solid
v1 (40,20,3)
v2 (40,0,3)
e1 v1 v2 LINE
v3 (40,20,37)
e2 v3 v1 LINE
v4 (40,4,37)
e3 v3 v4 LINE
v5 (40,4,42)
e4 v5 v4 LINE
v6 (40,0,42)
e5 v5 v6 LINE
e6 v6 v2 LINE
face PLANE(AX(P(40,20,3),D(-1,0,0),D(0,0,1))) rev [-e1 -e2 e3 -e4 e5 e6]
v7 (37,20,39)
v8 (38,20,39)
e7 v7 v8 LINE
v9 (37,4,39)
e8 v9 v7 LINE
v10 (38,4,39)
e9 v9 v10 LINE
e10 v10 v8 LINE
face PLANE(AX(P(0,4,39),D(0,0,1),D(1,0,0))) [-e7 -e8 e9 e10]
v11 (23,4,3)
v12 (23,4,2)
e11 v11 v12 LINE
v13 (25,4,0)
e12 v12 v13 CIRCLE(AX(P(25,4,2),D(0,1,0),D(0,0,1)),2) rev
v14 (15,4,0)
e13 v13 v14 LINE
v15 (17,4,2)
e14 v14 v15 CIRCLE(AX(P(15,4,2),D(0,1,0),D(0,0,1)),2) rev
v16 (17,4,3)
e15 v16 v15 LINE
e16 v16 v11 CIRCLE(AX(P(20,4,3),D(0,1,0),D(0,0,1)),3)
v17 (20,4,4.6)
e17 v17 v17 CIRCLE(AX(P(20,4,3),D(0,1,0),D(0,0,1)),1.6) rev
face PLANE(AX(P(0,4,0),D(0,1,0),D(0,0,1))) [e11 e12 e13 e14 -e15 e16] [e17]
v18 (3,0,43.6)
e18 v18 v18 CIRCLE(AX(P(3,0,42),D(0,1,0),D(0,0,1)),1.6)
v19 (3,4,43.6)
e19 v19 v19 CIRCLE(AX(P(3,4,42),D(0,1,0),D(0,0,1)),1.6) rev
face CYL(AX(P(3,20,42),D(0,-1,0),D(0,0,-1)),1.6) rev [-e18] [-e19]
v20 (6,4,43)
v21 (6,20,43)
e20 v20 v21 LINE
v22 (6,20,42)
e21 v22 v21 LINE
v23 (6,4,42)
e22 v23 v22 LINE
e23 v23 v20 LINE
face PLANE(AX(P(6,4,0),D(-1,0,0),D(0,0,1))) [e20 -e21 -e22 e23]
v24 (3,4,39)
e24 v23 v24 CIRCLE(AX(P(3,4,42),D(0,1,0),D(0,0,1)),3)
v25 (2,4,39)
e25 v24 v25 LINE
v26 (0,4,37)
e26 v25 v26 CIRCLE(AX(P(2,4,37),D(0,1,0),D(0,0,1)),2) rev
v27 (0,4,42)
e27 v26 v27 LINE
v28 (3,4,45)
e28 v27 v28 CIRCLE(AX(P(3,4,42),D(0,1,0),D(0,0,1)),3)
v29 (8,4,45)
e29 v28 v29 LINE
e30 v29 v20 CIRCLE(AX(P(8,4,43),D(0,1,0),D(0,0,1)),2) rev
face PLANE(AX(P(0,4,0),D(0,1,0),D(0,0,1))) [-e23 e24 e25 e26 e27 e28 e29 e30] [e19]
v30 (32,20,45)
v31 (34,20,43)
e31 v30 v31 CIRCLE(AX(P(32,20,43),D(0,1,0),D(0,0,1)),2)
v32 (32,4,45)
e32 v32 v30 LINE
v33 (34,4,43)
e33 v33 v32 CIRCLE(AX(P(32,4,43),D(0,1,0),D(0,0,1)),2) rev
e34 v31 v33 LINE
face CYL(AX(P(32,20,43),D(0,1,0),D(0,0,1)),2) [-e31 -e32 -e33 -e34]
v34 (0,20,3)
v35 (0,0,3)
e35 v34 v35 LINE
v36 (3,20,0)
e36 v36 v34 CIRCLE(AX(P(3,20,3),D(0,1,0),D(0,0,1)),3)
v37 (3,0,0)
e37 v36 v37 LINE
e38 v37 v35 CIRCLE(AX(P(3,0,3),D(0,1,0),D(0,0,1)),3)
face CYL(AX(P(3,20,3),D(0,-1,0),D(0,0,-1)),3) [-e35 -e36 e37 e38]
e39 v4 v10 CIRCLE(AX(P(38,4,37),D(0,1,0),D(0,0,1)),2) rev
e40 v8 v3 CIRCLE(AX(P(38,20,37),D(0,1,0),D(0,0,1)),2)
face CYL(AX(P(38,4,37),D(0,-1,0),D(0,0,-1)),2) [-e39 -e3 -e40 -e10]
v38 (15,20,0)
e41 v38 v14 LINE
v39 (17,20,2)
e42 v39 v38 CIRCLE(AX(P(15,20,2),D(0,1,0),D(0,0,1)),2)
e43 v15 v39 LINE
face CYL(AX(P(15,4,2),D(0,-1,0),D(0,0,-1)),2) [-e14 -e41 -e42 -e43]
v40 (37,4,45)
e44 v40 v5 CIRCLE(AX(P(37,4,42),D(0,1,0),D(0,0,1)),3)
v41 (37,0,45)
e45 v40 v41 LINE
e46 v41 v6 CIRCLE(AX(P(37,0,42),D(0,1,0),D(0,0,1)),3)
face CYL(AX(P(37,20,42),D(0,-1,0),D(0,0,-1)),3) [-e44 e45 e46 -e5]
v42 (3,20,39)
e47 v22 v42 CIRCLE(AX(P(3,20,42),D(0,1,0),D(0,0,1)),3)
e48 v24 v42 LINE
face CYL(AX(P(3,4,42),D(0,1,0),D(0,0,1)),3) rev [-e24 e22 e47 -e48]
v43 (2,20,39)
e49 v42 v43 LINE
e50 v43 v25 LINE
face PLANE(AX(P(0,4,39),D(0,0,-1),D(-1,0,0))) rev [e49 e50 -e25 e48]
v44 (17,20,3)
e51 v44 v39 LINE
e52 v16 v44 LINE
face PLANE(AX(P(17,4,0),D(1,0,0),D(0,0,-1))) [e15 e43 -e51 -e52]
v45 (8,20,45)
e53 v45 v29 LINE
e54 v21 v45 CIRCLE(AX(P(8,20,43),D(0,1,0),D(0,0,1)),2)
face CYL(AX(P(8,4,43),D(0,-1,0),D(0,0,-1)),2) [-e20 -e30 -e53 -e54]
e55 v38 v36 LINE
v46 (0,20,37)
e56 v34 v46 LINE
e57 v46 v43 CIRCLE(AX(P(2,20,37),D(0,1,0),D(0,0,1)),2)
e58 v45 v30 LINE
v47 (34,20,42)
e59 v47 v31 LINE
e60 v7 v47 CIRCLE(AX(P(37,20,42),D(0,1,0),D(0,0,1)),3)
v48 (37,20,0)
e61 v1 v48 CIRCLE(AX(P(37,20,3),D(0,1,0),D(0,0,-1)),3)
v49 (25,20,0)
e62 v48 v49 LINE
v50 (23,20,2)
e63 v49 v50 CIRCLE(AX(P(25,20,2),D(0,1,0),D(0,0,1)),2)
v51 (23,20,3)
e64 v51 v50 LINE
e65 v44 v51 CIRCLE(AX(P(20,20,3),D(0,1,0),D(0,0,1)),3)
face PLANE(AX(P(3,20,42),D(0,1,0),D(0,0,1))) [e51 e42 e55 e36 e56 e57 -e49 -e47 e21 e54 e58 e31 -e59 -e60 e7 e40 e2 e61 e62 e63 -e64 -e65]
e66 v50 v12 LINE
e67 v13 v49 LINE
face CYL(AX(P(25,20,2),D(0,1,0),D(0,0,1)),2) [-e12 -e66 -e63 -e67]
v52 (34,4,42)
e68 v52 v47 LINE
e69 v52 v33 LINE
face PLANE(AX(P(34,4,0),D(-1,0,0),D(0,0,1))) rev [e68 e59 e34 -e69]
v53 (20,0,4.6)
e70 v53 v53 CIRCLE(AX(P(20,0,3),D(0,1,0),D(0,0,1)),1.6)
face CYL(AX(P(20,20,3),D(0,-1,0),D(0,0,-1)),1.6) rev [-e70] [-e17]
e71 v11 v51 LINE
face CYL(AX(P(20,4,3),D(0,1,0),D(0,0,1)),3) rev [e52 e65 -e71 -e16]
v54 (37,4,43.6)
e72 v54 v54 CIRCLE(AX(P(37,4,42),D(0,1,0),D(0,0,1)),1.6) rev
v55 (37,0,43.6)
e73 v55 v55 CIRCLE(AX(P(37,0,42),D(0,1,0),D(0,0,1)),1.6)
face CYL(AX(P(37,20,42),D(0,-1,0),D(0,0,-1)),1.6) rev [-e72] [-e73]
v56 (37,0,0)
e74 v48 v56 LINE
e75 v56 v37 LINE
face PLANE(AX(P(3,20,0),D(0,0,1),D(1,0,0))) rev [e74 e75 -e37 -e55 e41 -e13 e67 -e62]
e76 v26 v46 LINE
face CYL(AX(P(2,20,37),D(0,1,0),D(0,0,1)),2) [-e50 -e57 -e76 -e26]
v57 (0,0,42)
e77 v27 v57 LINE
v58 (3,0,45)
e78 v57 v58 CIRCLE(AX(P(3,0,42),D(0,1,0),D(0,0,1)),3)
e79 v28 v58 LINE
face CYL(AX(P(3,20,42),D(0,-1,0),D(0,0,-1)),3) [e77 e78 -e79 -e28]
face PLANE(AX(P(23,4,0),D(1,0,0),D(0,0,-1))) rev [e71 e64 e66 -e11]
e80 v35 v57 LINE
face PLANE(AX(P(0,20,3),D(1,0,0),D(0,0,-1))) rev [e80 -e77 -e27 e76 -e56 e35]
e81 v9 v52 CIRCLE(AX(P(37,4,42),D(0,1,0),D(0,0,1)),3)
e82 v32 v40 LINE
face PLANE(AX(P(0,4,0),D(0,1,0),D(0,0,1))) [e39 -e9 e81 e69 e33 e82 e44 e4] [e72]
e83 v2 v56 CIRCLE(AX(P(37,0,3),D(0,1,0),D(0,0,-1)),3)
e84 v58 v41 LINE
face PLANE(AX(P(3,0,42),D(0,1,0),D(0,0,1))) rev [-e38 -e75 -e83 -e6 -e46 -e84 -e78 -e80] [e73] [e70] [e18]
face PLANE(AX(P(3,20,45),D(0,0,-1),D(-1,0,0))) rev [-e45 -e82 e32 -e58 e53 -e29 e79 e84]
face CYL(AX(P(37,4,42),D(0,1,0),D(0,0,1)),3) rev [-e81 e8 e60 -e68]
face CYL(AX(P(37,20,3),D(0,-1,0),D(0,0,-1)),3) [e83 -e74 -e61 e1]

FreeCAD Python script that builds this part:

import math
import FreeCAD as App
import Part
import Sketcher


def edges_at(feature, points):
    """Names of the edges that pass closest to the given points."""
    edges = feature.Shape.Edges
    near = lambda p: min(range(len(edges)), key=lambda i: edges[i].distToShape(Part.Vertex(*p))[0])
    return sorted({f"Edge{near(p) + 1}" for p in points})

doc = App.newDocument("Part")
body = doc.addObject("PartDesign::Body", "Body")

sketch1 = body.newObject("Sketcher::SketchObject", "Sketch")
sketch1.AttachmentSupport = (doc.getObject("XZ_Plane"), [""])
sketch1.MapMode = "FlatFace"
sketch1.addGeometry(Part.LineSegment(App.Vector(37, 0, 0), App.Vector(3, 0, 0)), False)
sketch1.addGeometry(Part.ArcOfCircle(Part.Circle(App.Vector(3, 3, 0), App.Vector(0, 0, 1), 3), math.radians(180), math.radians(270)), False)
sketch1.addGeometry(Part.LineSegment(App.Vector(0, 3, 0), App.Vector(0, 42, 0)), False)
sketch1.addGeometry(Part.ArcOfCircle(Part.Circle(App.Vector(3, 42, 0), App.Vector(0, 0, 1), 3), math.radians(90), math.radians(180)), False)
sketch1.addGeometry(Part.LineSegment(App.Vector(3, 45, 0), App.Vector(37, 45, 0)), False)
sketch1.addGeometry(Part.ArcOfCircle(Part.Circle(App.Vector(37, 42, 0), App.Vector(0, 0, 1), 3), math.radians(0), math.radians(90)), False)
sketch1.addGeometry(Part.LineSegment(App.Vector(40, 42, 0), App.Vector(40, 3, 0)), False)
sketch1.addGeometry(Part.ArcOfCircle(Part.Circle(App.Vector(37, 3, 0), App.Vector(0, 0, 1), 3), math.radians(-90), math.radians(0)), False)
sketch1.addGeometry(Part.Circle(App.Vector(37, 42, 0), App.Vector(0, 0, 1), 1.6), False)
sketch1.addGeometry(Part.Circle(App.Vector(3, 42, 0), App.Vector(0, 0, 1), 1.6), False)
sketch1.addGeometry(Part.Circle(App.Vector(20, 3, 0), App.Vector(0, 0, 1), 1.6), False)
sketch1.addConstraint(Sketcher.Constraint("Tangent", 0, 2, 1, 2))
sketch1.addConstraint(Sketcher.Constraint("Tangent", 1, 1, 2, 1))
sketch1.addConstraint(Sketcher.Constraint("Tangent", 2, 2, 3, 2))
sketch1.addConstraint(Sketcher.Constraint("Tangent", 3, 1, 4, 1))
sketch1.addConstraint(Sketcher.Constraint("Tangent", 4, 2, 5, 2))
sketch1.addConstraint(Sketcher.Constraint("Tangent", 5, 1, 6, 1))
sketch1.addConstraint(Sketcher.Constraint("Tangent", 6, 2, 7, 2))
sketch1.addConstraint(Sketcher.Constraint("Tangent", 7, 1, 0, 1))
sketch1.addConstraint(Sketcher.Constraint("Horizontal", 0))
sketch1.addConstraint(Sketcher.Constraint("Vertical", 2))
sketch1.addConstraint(Sketcher.Constraint("Horizontal", 4))
sketch1.addConstraint(Sketcher.Constraint("Vertical", 6))
sketch1.addConstraint(Sketcher.Constraint("Coincident", 8, 3, 5, 3))
sketch1.addConstraint(Sketcher.Constraint("Coincident", 9, 3, 3, 3))
sketch1.addConstraint(Sketcher.Constraint("Equal", 1, 3))
sketch1.addConstraint(Sketcher.Constraint("Equal", 3, 5))
sketch1.addConstraint(Sketcher.Constraint("Equal", 5, 7))
sketch1.addConstraint(Sketcher.Constraint("Equal", 8, 9))
sketch1.addConstraint(Sketcher.Constraint("Equal", 9, 10))
sketch1.addConstraint(Sketcher.Constraint("PointOnObject", 0, 2, -1))
sketch1.addConstraint(Sketcher.Constraint("PointOnObject", 1, 1, -2))
sketch1.addConstraint(Sketcher.Constraint("Horizontal", 7, 3, 10, 3))
sketch1.addConstraint(Sketcher.Constraint("Radius", 1, 3.0))
sketch1.addConstraint(Sketcher.Constraint("Diameter", 8, 3.2))
sketch1.addConstraint(Sketcher.Constraint("DistanceX", 0, 2, 0, 1, 34.0))
sketch1.addConstraint(Sketcher.Constraint("DistanceY", 2, 1, 2, 2, 39.0))
sketch1.addConstraint(Sketcher.Constraint("DistanceX", -1, 1, 10, 3, 20.0))
pad1 = body.newObject("PartDesign::Pad", "Pad")
pad1.Profile = sketch1
pad1.Length = 20
pad1.Reversed = True

sketch2 = body.newObject("Sketcher::SketchObject", "Sketch001")
sketch2.AttachmentSupport = (doc.getObject("XZ_Plane"), [""])
sketch2.MapMode = "FlatFace"
sketch2.AttachmentOffset = App.Placement(App.Vector(0, 0, -20), App.Rotation())
sketch2.addGeometry(Part.LineSegment(App.Vector(40, 42, 0), App.Vector(40, 39, 0)), False)
sketch2.addGeometry(Part.LineSegment(App.Vector(40, 39, 0), App.Vector(37, 39, 0)), False)
sketch2.addGeometry(Part.ArcOfCircle(Part.Circle(App.Vector(37, 42, 0), App.Vector(0, 0, 1), 3), math.radians(180), math.radians(270)), False)
sketch2.addGeometry(Part.LineSegment(App.Vector(34, 42, 0), App.Vector(34, 45, 0)), False)
sketch2.addGeometry(Part.LineSegment(App.Vector(34, 45, 0), App.Vector(37, 45, 0)), False)
sketch2.addGeometry(Part.ArcOfCircle(Part.Circle(App.Vector(37, 42, 0), App.Vector(0, 0, 1), 3), math.radians(0), math.radians(90)), False)
sketch2.addGeometry(Part.Circle(App.Vector(37, 42, 0), App.Vector(0, 0, 1), 1.6), False)
sketch2.addGeometry(Part.LineSegment(App.Vector(3, 39, 0), App.Vector(0, 39, 0)), False)
sketch2.addGeometry(Part.LineSegment(App.Vector(0, 39, 0), App.Vector(0, 42, 0)), False)
sketch2.addGeometry(Part.ArcOfCircle(Part.Circle(App.Vector(3, 42, 0), App.Vector(0, 0, 1), 3), math.radians(90), math.radians(180)), False)
sketch2.addGeometry(Part.LineSegment(App.Vector(3, 45, 0), App.Vector(6, 45, 0)), False)
sketch2.addGeometry(Part.LineSegment(App.Vector(6, 45, 0), App.Vector(6, 42, 0)), False)
sketch2.addGeometry(Part.ArcOfCircle(Part.Circle(App.Vector(3, 42, 0), App.Vector(0, 0, 1), 3), math.radians(-90), math.radians(0)), False)
sketch2.addGeometry(Part.Circle(App.Vector(3, 42, 0), App.Vector(0, 0, 1), 1.6), False)
sketch2.addGeometry(Part.LineSegment(App.Vector(17, 0, 0), App.Vector(17, 3, 0)), False)
sketch2.addGeometry(Part.ArcOfCircle(Part.Circle(App.Vector(20, 3, 0), App.Vector(0, 0, 1), 3), math.radians(0), math.radians(180)), False)
sketch2.addGeometry(Part.LineSegment(App.Vector(23, 3, 0), App.Vector(23, 0, 0)), False)
sketch2.addGeometry(Part.LineSegment(App.Vector(23, 0, 0), App.Vector(17, 0, 0)), False)
sketch2.addGeometry(Part.Circle(App.Vector(20, 3, 0), App.Vector(0, 0, 1), 1.6), False)
sketch2.addConstraint(Sketcher.Constraint("Coincident", 0, 2, 1, 1))
sketch2.addConstraint(Sketcher.Constraint("Tangent", 1, 2, 2, 2))
sketch2.addConstraint(Sketcher.Constraint("Tangent", 2, 1, 3, 1))
sketch2.addConstraint(Sketcher.Constraint("Coincident", 3, 2, 4, 1))
sketch2.addConstraint(Sketcher.Constraint("Tangent", 4, 2, 5, 2))
sketch2.addConstraint(Sketcher.Constraint("Tangent", 5, 1, 0, 1))
sketch2.addConstraint(Sketcher.Constraint("Coincident", 7, 2, 8, 1))
sketch2.addConstraint(Sketcher.Constraint("Tangent", 8, 2, 9, 2))
sketch2.addConstraint(Sketcher.Constraint("Tangent", 9, 1, 10, 1))
sketch2.addConstraint(Sketcher.Constraint("Coincident", 10, 2, 11, 1))
sketch2.addConstraint(Sketcher.Constraint("Tangent", 11, 2, 12, 2))
sketch2.addConstraint(Sketcher.Constraint("Tangent", 12, 1, 7, 1))
sketch2.addConstraint(Sketcher.Constraint("Tangent", 14, 2, 15, 2))
sketch2.addConstraint(Sketcher.Constraint("Tangent", 15, 1, 16, 1))
sketch2.addConstraint(Sketcher.Constraint("Coincident", 16, 2, 17, 1))
sketch2.addConstraint(Sketcher.Constraint("Coincident", 17, 2, 14, 1))
sketch2.addConstraint(Sketcher.Constraint("Vertical", 0))
sketch2.addConstraint(Sketcher.Constraint("Horizontal", 1))
sketch2.addConstraint(Sketcher.Constraint("Vertical", 3))
sketch2.addConstraint(Sketcher.Constraint("Horizontal", 4))
sketch2.addConstraint(Sketcher.Constraint("Horizontal", 7))
sketch2.addConstraint(Sketcher.Constraint("Vertical", 8))
sketch2.addConstraint(Sketcher.Constraint("Horizontal", 10))
sketch2.addConstraint(Sketcher.Constraint("Vertical", 11))
sketch2.addConstraint(Sketcher.Constraint("Vertical", 14))
sketch2.addConstraint(Sketcher.Constraint("Vertical", 16))
sketch2.addConstraint(Sketcher.Constraint("Horizontal", 17))
sketch2.addConstraint(Sketcher.Constraint("Coincident", 5, 3, 2, 3))
sketch2.addConstraint(Sketcher.Constraint("Coincident", 6, 3, 2, 3))
sketch2.addConstraint(Sketcher.Constraint("Coincident", 12, 3, 9, 3))
sketch2.addConstraint(Sketcher.Constraint("Coincident", 13, 3, 9, 3))
sketch2.addConstraint(Sketcher.Constraint("Coincident", 18, 3, 15, 3))
sketch2.addConstraint(Sketcher.Constraint("Equal", 2, 5))
sketch2.addConstraint(Sketcher.Constraint("Equal", 5, 9))
sketch2.addConstraint(Sketcher.Constraint("Equal", 9, 12))
sketch2.addConstraint(Sketcher.Constraint("Equal", 6, 13))
sketch2.addConstraint(Sketcher.Constraint("Equal", 12, 15))
sketch2.addConstraint(Sketcher.Constraint("Equal", 13, 18))
sketch2.addConstraint(Sketcher.Constraint("PointOnObject", 7, 2, -2))
sketch2.addConstraint(Sketcher.Constraint("PointOnObject", 16, 2, -1))
sketch2.addConstraint(Sketcher.Constraint("Horizontal", 6, 3, 9, 3))
sketch2.addConstraint(Sketcher.Constraint("Equal", 11, 14))
sketch2.addConstraint(Sketcher.Constraint("Radius", 2, 3.0))
sketch2.addConstraint(Sketcher.Constraint("Diameter", 6, 3.2))
sketch2.addConstraint(Sketcher.Constraint("DistanceX", -1, 1, 2, 3, 37.0))
sketch2.addConstraint(Sketcher.Constraint("DistanceY", -1, 1, 2, 3, 42.0))
sketch2.addConstraint(Sketcher.Constraint("DistanceX", -1, 1, 15, 3, 20.0))
pocket1 = body.newObject("PartDesign::Pocket", "Pocket")
pocket1.Profile = sketch2
pocket1.Length = 16
pocket1.Reversed = True
doc.recompute()

fillet = body.newObject("PartDesign::Fillet", "Fillet")
fillet.Base = (pocket1, edges_at(pocket1, [
    (40, 12, 39),
    (34, 12, 45),
    (6, 12, 45),
    (0, 12, 39),
    (17, 12, 0),
    (23, 12, 0),
]))
fillet.Radius = 2

sketch3 = body.newObject("Sketcher::SketchObject", "Sketch002")
sketch3.AttachmentSupport = (doc.getObject("XY_Plane"), [""])
sketch3.MapMode = "FlatFace"
sketch3.AttachmentOffset = App.Placement(App.Vector(0, 0, 45), App.Rotation())
sketch3.addGeometry(Part.Circle(App.Vector(20, 10, 0), App.Vector(0, 0, 1), 7), False)
sketch3.addConstraint(Sketcher.Constraint("Diameter", 0, 14.0))
sketch3.addConstraint(Sketcher.Constraint("DistanceX", -1, 1, 0, 3, 20.0))
sketch3.addConstraint(Sketcher.Constraint("DistanceY", -1, 1, 0, 3, 10.0))
pad2 = body.newObject("PartDesign::Pad", "Pad001")
pad2.Profile = sketch3
pad2.Length = 50

sketch4 = body.newObject("Sketcher::SketchObject", "Sketch003")
sketch4.AttachmentSupport = (doc.getObject("XY_Plane"), [""])
sketch4.MapMode = "FlatFace"
sketch4.AttachmentOffset = App.Placement(App.Vector(0, 0, 95), App.Rotation())
sketch4.addGeometry(Part.Circle(App.Vector(20, 10, 0), App.Vector(0, 0, 1), 7), False)
sketch4.addConstraint(Sketcher.Constraint("Diameter", 0, 14.0))
sketch4.addConstraint(Sketcher.Constraint("DistanceX", -1, 1, 0, 3, 20.0))
sketch4.addConstraint(Sketcher.Constraint("DistanceY", -1, 1, 0, 3, 10.0))
pocket2 = body.newObject("PartDesign::Pocket", "Pocket001")
pocket2.Profile = sketch4
pocket2.Length = 50

doc.recompute()
